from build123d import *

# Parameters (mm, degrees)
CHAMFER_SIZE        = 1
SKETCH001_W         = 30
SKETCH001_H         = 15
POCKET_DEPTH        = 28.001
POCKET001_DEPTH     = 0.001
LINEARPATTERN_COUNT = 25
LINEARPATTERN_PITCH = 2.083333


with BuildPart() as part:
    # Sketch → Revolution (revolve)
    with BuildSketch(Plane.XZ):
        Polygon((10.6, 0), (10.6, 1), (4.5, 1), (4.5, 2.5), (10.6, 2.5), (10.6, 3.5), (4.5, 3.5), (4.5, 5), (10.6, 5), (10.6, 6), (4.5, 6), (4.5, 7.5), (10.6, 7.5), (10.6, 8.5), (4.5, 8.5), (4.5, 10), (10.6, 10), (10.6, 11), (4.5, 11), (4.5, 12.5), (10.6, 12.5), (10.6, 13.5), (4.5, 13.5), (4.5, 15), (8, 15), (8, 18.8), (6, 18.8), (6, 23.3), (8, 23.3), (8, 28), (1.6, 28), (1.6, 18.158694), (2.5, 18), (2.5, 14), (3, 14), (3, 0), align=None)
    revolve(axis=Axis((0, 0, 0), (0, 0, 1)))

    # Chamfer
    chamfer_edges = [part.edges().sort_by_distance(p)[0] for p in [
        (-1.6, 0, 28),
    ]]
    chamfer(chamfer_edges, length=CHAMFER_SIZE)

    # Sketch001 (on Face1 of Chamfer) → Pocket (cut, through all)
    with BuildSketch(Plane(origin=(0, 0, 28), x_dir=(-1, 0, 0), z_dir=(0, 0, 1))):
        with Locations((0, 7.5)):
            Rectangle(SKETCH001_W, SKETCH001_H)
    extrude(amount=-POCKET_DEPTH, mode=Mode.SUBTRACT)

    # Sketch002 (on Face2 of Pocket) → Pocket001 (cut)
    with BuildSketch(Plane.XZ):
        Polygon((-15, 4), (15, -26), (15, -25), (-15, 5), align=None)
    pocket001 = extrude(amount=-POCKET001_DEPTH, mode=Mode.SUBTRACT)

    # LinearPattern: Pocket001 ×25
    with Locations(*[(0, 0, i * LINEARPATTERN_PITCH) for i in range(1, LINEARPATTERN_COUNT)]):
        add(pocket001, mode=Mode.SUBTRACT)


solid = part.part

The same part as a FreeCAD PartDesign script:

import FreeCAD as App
import Part
import Sketcher
from FreeCAD import Vector
Q = App.Units.Quantity


def edges_at(feature, points):
    """Names of the edges that pass closest to the given points."""
    edges = feature.Shape.Edges
    near = lambda p: min(range(len(edges)), key=lambda i: edges[i].distToShape(Part.Vertex(*p))[0])
    return sorted({f"Edge{near(p) + 1}" for p in points})

doc = App.newDocument("Part")
body = doc.addObject("PartDesign::Body", "Body")

sketch1 = doc.addObject("Sketcher::SketchObject", "Sketch")
body.addObject(sketch1)
sketch1.AttachmentSupport = (doc.XZ_Plane, [""])
sketch1.MapMode = "FlatFace"
sketch1.addGeometry([
    Part.LineSegment(Vector(10.6, 0, 0), Vector(10.6, 1, 0)),
    Part.LineSegment(Vector(10.6, 1, 0), Vector(4.5, 1, 0)),
    Part.LineSegment(Vector(4.5, 1, 0), Vector(4.5, 2.5, 0)),
    Part.LineSegment(Vector(4.5, 2.5, 0), Vector(10.6, 2.5, 0)),
    Part.LineSegment(Vector(10.6, 2.5, 0), Vector(10.6, 3.5, 0)),
    Part.LineSegment(Vector(10.6, 3.5, 0), Vector(4.5, 3.5, 0)),
    Part.LineSegment(Vector(4.5, 3.5, 0), Vector(4.5, 5, 0)),
    Part.LineSegment(Vector(4.5, 5, 0), Vector(10.6, 5, 0)),
    Part.LineSegment(Vector(10.6, 5, 0), Vector(10.6, 6, 0)),
    Part.LineSegment(Vector(10.6, 6, 0), Vector(4.5, 6, 0)),
    Part.LineSegment(Vector(4.5, 6, 0), Vector(4.5, 7.5, 0)),
    Part.LineSegment(Vector(4.5, 7.5, 0), Vector(10.6, 7.5, 0)),
    Part.LineSegment(Vector(10.6, 7.5, 0), Vector(10.6, 8.5, 0)),
    Part.LineSegment(Vector(10.6, 8.5, 0), Vector(4.5, 8.5, 0)),
    Part.LineSegment(Vector(4.5, 8.5, 0), Vector(4.5, 10, 0)),
    Part.LineSegment(Vector(4.5, 10, 0), Vector(10.6, 10, 0)),
    Part.LineSegment(Vector(10.6, 10, 0), Vector(10.6, 11, 0)),
    Part.LineSegment(Vector(10.6, 11, 0), Vector(4.5, 11, 0)),
    Part.LineSegment(Vector(4.5, 11, 0), Vector(4.5, 12.5, 0)),
    Part.LineSegment(Vector(4.5, 12.5, 0), Vector(10.6, 12.5, 0)),
    Part.LineSegment(Vector(10.6, 12.5, 0), Vector(10.6, 13.5, 0)),
    Part.LineSegment(Vector(10.6, 13.5, 0), Vector(4.5, 13.5, 0)),
    Part.LineSegment(Vector(4.5, 13.5, 0), Vector(4.5, 15, 0)),
    Part.LineSegment(Vector(4.5, 15, 0), Vector(8, 15, 0)),
    Part.LineSegment(Vector(8, 15, 0), Vector(8, 18.8, 0)),
    Part.LineSegment(Vector(8, 18.8, 0), Vector(6, 18.8, 0)),
    Part.LineSegment(Vector(6, 18.8, 0), Vector(6, 23.3, 0)),
    Part.LineSegment(Vector(6, 23.3, 0), Vector(8, 23.3, 0)),
    Part.LineSegment(Vector(8, 23.3, 0), Vector(8, 28, 0)),
    Part.LineSegment(Vector(8, 28, 0), Vector(1.6, 28, 0)),
    Part.LineSegment(Vector(1.6, 28, 0), Vector(1.6, 18.2, 0)),
    Part.LineSegment(Vector(1.6, 18.2, 0), Vector(2.5, 18, 0)),
    Part.LineSegment(Vector(2.5, 18, 0), Vector(2.5, 14, 0)),
    Part.LineSegment(Vector(2.5, 14, 0), Vector(3, 14, 0)),
    Part.LineSegment(Vector(3, 14, 0), Vector(3, 0, 0)),
    Part.LineSegment(Vector(3, 0, 0), Vector(10.6, 0, 0)),
], False)
sketch1.addConstraint([
    Sketcher.Constraint("Coincident", 0, 2, 1, 1),
    Sketcher.Constraint("Coincident", 1, 2, 2, 1),
    Sketcher.Constraint("Coincident", 2, 2, 3, 1),
    Sketcher.Constraint("Coincident", 3, 2, 4, 1),
    Sketcher.Constraint("Coincident", 4, 2, 5, 1),
    Sketcher.Constraint("Coincident", 5, 2, 6, 1),
    Sketcher.Constraint("Coincident", 6, 2, 7, 1),
    Sketcher.Constraint("Coincident", 7, 2, 8, 1),
    Sketcher.Constraint("Coincident", 8, 2, 9, 1),
    Sketcher.Constraint("Coincident", 9, 2, 10, 1),
    Sketcher.Constraint("Coincident", 10, 2, 11, 1),
    Sketcher.Constraint("Coincident", 11, 2, 12, 1),
    Sketcher.Constraint("Coincident", 12, 2, 13, 1),
    Sketcher.Constraint("Coincident", 13, 2, 14, 1),
    Sketcher.Constraint("Coincident", 14, 2, 15, 1),
    Sketcher.Constraint("Coincident", 15, 2, 16, 1),
    Sketcher.Constraint("Coincident", 16, 2, 17, 1),
    Sketcher.Constraint("Coincident", 17, 2, 18, 1),
    Sketcher.Constraint("Coincident", 18, 2, 19, 1),
    Sketcher.Constraint("Coincident", 19, 2, 20, 1),
    Sketcher.Constraint("Coincident", 20, 2, 21, 1),
    Sketcher.Constraint("Coincident", 21, 2, 22, 1),
    Sketcher.Constraint("Coincident", 22, 2, 23, 1),
    Sketcher.Constraint("Coincident", 23, 2, 24, 1),
    Sketcher.Constraint("Coincident", 24, 2, 25, 1),
    Sketcher.Constraint("Coincident", 25, 2, 26, 1),
    Sketcher.Constraint("Coincident", 26, 2, 27, 1),
    Sketcher.Constraint("Coincident", 27, 2, 28, 1),
    Sketcher.Constraint("Coincident", 28, 2, 29, 1),
    Sketcher.Constraint("Coincident", 29, 2, 30, 1),
    Sketcher.Constraint("Coincident", 30, 2, 31, 1),
    Sketcher.Constraint("Coincident", 31, 2, 32, 1),
    Sketcher.Constraint("Coincident", 32, 2, 33, 1),
    Sketcher.Constraint("Coincident", 33, 2, 34, 1),
    Sketcher.Constraint("Coincident", 34, 2, 35, 1),
    Sketcher.Constraint("Coincident", 35, 2, 0, 1),
    Sketcher.Constraint("Vertical", 0),
    Sketcher.Constraint("Horizontal", 1),
    Sketcher.Constraint("Vertical", 2),
    Sketcher.Constraint("Horizontal", 3),
    Sketcher.Constraint("Vertical", 4),
    Sketcher.Constraint("Horizontal", 5),
    Sketcher.Constraint("Vertical", 6),
    Sketcher.Constraint("Horizontal", 7),
    Sketcher.Constraint("Vertical", 8),
    Sketcher.Constraint("Horizontal", 9),
    Sketcher.Constraint("Vertical", 10),
    Sketcher.Constraint("Horizontal", 11),
    Sketcher.Constraint("Vertical", 12),
    Sketcher.Constraint("Horizontal", 13),
    Sketcher.Constraint("Vertical", 14),
    Sketcher.Constraint("Horizontal", 15),
    Sketcher.Constraint("Vertical", 16),
    Sketcher.Constraint("Horizontal", 17),
    Sketcher.Constraint("Vertical", 18),
    Sketcher.Constraint("Horizontal", 19),
    Sketcher.Constraint("Vertical", 20),
    Sketcher.Constraint("Horizontal", 21),
    Sketcher.Constraint("Vertical", 22),
    Sketcher.Constraint("Horizontal", 23),
    Sketcher.Constraint("Vertical", 24),
    Sketcher.Constraint("Horizontal", 25),
    Sketcher.Constraint("Vertical", 26),
    Sketcher.Constraint("Horizontal", 27),
    Sketcher.Constraint("Vertical", 28),
    Sketcher.Constraint("Horizontal", 29),
    Sketcher.Constraint("Vertical", 30),
    Sketcher.Constraint("Vertical", 32),
    Sketcher.Constraint("Horizontal", 33),
    Sketcher.Constraint("Vertical", 34),
    Sketcher.Constraint("Horizontal", 35),
    Sketcher.Constraint("PointOnObject", 34, 2, -1),
    Sketcher.Constraint("Vertical", 0, 2, 3, 2),
    Sketcher.Constraint("Vertical", 2, 2, 5, 2),
    Sketcher.Constraint("Vertical", 4, 2, 7, 2),
    Sketcher.Constraint("Vertical", 6, 2, 9, 2),
    Sketcher.Constraint("Vertical", 8, 2, 11, 2),
    Sketcher.Constraint("Vertical", 10, 2, 13, 2),
    Sketcher.Constraint("Vertical", 12, 2, 15, 2),
    Sketcher.Constraint("Vertical", 14, 2, 17, 2),
    Sketcher.Constraint("Vertical", 16, 2, 19, 2),
    Sketcher.Constraint("Vertical", 18, 2, 21, 2),
    Sketcher.Constraint("Vertical", 24, 2, 27, 2),
    Sketcher.Constraint("Equal", 0, 4),
    Sketcher.Constraint("Equal", 2, 6),
    Sketcher.Constraint("Equal", 4, 8),
    Sketcher.Constraint("Equal", 6, 10),
    Sketcher.Constraint("Equal", 8, 12),
    Sketcher.Constraint("Equal", 10, 14),
    Sketcher.Constraint("Equal", 12, 16),
    Sketcher.Constraint("Equal", 14, 18),
    Sketcher.Constraint("Equal", 16, 20),
    Sketcher.Constraint("Equal", 18, 22),
    Sketcher.Constraint("DistanceX", 25, 2, 25, 1, Q("2 mm")),
    Sketcher.Constraint("DistanceY", 0, 1, 0, 2, Q("1 mm")),
    Sketcher.Constraint("DistanceY", 32, 2, 32, 1, Q("4 mm")),
    Sketcher.Constraint("DistanceY", 34, 2, 34, 1, Q("14 mm")),
    Sketcher.Constraint("Angle", 31, Q("-9.999983 deg")),
    Sketcher.Constraint("DistanceX", 1, 2, 1, 1, Q("6.1 mm")),
    Sketcher.Constraint("DistanceX", 23, 1, 23, 2, Q("3.5 mm")),
    Sketcher.Constraint("DistanceX", 29, 2, 29, 1, Q("6.4 mm")),
    Sketcher.Constraint("DistanceX", 33, 1, 33, 2, Q("0.5 mm")),
    Sketcher.Constraint("DistanceX", 35, 1, 35, 2, Q("7.6 mm")),
    Sketcher.Constraint("DistanceY", 2, 1, 2, 2, Q("1.5 mm")),
    Sketcher.Constraint("DistanceY", 24, 1, 24, 2, Q("3.8 mm")),
    Sketcher.Constraint("DistanceY", 26, 1, 26, 2, Q("4.5 mm")),
    Sketcher.Constraint("DistanceY", 28, 1, 28, 2, Q("4.7 mm")),
    Sketcher.Constraint("DistanceX", -1, 1, 23, 2, Q("8 mm")),
])
revolution = doc.addObject("PartDesign::Revolution", "Revolution")
body.addObject(revolution)
revolution.Profile = sketch1
revolution.ReferenceAxis = (sketch1, ["V_Axis"])
revolution.Angle = 360
doc.recompute()

chamfer = doc.addObject("PartDesign::Chamfer", "Chamfer")
body.addObject(chamfer)
chamfer.Base = (revolution, edges_at(revolution, [(-1.6, 0, 28)]))
chamfer.Size = 1

sketch2 = doc.addObject("Sketcher::SketchObject", "Sketch001")
body.addObject(sketch2)
sketch2.AttachmentSupport = (doc.XY_Plane, [""])
sketch2.MapMode = "FlatFace"
sketch2.AttachmentOffset = App.Placement(Vector(0, 0, 28), App.Rotation())
sketch2.addGeometry([
    Part.LineSegment(Vector(15, -15, 0), Vector(15, 0, 0)),
    Part.LineSegment(Vector(15, 0, 0), Vector(-15, 0, 0)),
    Part.LineSegment(Vector(-15, 0, 0), Vector(-15, -15, 0)),
    Part.LineSegment(Vector(-15, -15, 0), Vector(15, -15, 0)),
], False)
sketch2.addConstraint([
    Sketcher.Constraint("Coincident", 0, 2, 1, 1),
    Sketcher.Constraint("Coincident", 1, 2, 2, 1),
    Sketcher.Constraint("Coincident", 2, 2, 3, 1),
    Sketcher.Constraint("Coincident", 3, 2, 0, 1),
    Sketcher.Constraint("Vertical", 0),
    Sketcher.Constraint("Horizontal", 1),
    Sketcher.Constraint("Vertical", 2),
    Sketcher.Constraint("Horizontal", 3),
    Sketcher.Constraint("Symmetric", 0, 2, 1, 2, -1, 1),
    Sketcher.Constraint("DistanceX", 1, 2, 1, 1, Q("30 mm")),
    Sketcher.Constraint("DistanceY", 0, 1, 0, 2, Q("15 mm")),
])
pocket1 = doc.addObject("PartDesign::Pocket", "Pocket")
body.addObject(pocket1)
pocket1.Profile = sketch2
pocket1.Type = "ThroughAll"

sketch3 = doc.addObject("Sketcher::SketchObject", "Sketch002")
body.addObject(sketch3)
sketch3.AttachmentSupport = (doc.XZ_Plane, [""])
sketch3.MapMode = "FlatFace"
sketch3.addGeometry([
    Part.LineSegment(Vector(-15, 4, 0), Vector(15, -26, 0)),
    Part.LineSegment(Vector(15, -26, 0), Vector(15, -25, 0)),
    Part.LineSegment(Vector(15, -25, 0), Vector(-15, 5, 0)),
    Part.LineSegment(Vector(-15, 5, 0), Vector(-15, 4, 0)),
], False)
sketch3.addConstraint([
    Sketcher.Constraint("Coincident", 0, 2, 1, 1),
    Sketcher.Constraint("Coincident", 1, 2, 2, 1),
    Sketcher.Constraint("Coincident", 2, 2, 3, 1),
    Sketcher.Constraint("Coincident", 3, 2, 0, 1),
    Sketcher.Constraint("Vertical", 1),
    Sketcher.Constraint("Vertical", 3),
    Sketcher.Constraint("Parallel", 0, 2),
    Sketcher.Constraint("DistanceY", 1, 1, 1, 2, Q("1 mm")),
    Sketcher.Constraint("Angle", 0, Q("-45 deg")),
    Sketcher.Constraint("DistanceX", -1, 1, 0, 2, Q("15 mm")),
    Sketcher.Constraint("DistanceY", 0, 2, -1, 1, Q("26 mm")),
    Sketcher.Constraint("DistanceX", 2, 2, -1, 1, Q("15 mm")),
])
pocket2 = doc.addObject("PartDesign::Pocket", "Pocket001")
body.addObject(pocket2)
pocket2.Profile = sketch3
pocket2.Length = 0.001
doc.recompute()

linearpattern = doc.addObject("PartDesign::LinearPattern", "LinearPattern")
body.addObject(linearpattern)
linearpattern.Originals = [pocket2]
linearpattern.Direction = (doc.Z_Axis, [""])
linearpattern.Mode = "offset"
linearpattern.Offset = 2.083333
linearpattern.Occurrences = 25
body.Tip = linearpattern

doc.recompute()
